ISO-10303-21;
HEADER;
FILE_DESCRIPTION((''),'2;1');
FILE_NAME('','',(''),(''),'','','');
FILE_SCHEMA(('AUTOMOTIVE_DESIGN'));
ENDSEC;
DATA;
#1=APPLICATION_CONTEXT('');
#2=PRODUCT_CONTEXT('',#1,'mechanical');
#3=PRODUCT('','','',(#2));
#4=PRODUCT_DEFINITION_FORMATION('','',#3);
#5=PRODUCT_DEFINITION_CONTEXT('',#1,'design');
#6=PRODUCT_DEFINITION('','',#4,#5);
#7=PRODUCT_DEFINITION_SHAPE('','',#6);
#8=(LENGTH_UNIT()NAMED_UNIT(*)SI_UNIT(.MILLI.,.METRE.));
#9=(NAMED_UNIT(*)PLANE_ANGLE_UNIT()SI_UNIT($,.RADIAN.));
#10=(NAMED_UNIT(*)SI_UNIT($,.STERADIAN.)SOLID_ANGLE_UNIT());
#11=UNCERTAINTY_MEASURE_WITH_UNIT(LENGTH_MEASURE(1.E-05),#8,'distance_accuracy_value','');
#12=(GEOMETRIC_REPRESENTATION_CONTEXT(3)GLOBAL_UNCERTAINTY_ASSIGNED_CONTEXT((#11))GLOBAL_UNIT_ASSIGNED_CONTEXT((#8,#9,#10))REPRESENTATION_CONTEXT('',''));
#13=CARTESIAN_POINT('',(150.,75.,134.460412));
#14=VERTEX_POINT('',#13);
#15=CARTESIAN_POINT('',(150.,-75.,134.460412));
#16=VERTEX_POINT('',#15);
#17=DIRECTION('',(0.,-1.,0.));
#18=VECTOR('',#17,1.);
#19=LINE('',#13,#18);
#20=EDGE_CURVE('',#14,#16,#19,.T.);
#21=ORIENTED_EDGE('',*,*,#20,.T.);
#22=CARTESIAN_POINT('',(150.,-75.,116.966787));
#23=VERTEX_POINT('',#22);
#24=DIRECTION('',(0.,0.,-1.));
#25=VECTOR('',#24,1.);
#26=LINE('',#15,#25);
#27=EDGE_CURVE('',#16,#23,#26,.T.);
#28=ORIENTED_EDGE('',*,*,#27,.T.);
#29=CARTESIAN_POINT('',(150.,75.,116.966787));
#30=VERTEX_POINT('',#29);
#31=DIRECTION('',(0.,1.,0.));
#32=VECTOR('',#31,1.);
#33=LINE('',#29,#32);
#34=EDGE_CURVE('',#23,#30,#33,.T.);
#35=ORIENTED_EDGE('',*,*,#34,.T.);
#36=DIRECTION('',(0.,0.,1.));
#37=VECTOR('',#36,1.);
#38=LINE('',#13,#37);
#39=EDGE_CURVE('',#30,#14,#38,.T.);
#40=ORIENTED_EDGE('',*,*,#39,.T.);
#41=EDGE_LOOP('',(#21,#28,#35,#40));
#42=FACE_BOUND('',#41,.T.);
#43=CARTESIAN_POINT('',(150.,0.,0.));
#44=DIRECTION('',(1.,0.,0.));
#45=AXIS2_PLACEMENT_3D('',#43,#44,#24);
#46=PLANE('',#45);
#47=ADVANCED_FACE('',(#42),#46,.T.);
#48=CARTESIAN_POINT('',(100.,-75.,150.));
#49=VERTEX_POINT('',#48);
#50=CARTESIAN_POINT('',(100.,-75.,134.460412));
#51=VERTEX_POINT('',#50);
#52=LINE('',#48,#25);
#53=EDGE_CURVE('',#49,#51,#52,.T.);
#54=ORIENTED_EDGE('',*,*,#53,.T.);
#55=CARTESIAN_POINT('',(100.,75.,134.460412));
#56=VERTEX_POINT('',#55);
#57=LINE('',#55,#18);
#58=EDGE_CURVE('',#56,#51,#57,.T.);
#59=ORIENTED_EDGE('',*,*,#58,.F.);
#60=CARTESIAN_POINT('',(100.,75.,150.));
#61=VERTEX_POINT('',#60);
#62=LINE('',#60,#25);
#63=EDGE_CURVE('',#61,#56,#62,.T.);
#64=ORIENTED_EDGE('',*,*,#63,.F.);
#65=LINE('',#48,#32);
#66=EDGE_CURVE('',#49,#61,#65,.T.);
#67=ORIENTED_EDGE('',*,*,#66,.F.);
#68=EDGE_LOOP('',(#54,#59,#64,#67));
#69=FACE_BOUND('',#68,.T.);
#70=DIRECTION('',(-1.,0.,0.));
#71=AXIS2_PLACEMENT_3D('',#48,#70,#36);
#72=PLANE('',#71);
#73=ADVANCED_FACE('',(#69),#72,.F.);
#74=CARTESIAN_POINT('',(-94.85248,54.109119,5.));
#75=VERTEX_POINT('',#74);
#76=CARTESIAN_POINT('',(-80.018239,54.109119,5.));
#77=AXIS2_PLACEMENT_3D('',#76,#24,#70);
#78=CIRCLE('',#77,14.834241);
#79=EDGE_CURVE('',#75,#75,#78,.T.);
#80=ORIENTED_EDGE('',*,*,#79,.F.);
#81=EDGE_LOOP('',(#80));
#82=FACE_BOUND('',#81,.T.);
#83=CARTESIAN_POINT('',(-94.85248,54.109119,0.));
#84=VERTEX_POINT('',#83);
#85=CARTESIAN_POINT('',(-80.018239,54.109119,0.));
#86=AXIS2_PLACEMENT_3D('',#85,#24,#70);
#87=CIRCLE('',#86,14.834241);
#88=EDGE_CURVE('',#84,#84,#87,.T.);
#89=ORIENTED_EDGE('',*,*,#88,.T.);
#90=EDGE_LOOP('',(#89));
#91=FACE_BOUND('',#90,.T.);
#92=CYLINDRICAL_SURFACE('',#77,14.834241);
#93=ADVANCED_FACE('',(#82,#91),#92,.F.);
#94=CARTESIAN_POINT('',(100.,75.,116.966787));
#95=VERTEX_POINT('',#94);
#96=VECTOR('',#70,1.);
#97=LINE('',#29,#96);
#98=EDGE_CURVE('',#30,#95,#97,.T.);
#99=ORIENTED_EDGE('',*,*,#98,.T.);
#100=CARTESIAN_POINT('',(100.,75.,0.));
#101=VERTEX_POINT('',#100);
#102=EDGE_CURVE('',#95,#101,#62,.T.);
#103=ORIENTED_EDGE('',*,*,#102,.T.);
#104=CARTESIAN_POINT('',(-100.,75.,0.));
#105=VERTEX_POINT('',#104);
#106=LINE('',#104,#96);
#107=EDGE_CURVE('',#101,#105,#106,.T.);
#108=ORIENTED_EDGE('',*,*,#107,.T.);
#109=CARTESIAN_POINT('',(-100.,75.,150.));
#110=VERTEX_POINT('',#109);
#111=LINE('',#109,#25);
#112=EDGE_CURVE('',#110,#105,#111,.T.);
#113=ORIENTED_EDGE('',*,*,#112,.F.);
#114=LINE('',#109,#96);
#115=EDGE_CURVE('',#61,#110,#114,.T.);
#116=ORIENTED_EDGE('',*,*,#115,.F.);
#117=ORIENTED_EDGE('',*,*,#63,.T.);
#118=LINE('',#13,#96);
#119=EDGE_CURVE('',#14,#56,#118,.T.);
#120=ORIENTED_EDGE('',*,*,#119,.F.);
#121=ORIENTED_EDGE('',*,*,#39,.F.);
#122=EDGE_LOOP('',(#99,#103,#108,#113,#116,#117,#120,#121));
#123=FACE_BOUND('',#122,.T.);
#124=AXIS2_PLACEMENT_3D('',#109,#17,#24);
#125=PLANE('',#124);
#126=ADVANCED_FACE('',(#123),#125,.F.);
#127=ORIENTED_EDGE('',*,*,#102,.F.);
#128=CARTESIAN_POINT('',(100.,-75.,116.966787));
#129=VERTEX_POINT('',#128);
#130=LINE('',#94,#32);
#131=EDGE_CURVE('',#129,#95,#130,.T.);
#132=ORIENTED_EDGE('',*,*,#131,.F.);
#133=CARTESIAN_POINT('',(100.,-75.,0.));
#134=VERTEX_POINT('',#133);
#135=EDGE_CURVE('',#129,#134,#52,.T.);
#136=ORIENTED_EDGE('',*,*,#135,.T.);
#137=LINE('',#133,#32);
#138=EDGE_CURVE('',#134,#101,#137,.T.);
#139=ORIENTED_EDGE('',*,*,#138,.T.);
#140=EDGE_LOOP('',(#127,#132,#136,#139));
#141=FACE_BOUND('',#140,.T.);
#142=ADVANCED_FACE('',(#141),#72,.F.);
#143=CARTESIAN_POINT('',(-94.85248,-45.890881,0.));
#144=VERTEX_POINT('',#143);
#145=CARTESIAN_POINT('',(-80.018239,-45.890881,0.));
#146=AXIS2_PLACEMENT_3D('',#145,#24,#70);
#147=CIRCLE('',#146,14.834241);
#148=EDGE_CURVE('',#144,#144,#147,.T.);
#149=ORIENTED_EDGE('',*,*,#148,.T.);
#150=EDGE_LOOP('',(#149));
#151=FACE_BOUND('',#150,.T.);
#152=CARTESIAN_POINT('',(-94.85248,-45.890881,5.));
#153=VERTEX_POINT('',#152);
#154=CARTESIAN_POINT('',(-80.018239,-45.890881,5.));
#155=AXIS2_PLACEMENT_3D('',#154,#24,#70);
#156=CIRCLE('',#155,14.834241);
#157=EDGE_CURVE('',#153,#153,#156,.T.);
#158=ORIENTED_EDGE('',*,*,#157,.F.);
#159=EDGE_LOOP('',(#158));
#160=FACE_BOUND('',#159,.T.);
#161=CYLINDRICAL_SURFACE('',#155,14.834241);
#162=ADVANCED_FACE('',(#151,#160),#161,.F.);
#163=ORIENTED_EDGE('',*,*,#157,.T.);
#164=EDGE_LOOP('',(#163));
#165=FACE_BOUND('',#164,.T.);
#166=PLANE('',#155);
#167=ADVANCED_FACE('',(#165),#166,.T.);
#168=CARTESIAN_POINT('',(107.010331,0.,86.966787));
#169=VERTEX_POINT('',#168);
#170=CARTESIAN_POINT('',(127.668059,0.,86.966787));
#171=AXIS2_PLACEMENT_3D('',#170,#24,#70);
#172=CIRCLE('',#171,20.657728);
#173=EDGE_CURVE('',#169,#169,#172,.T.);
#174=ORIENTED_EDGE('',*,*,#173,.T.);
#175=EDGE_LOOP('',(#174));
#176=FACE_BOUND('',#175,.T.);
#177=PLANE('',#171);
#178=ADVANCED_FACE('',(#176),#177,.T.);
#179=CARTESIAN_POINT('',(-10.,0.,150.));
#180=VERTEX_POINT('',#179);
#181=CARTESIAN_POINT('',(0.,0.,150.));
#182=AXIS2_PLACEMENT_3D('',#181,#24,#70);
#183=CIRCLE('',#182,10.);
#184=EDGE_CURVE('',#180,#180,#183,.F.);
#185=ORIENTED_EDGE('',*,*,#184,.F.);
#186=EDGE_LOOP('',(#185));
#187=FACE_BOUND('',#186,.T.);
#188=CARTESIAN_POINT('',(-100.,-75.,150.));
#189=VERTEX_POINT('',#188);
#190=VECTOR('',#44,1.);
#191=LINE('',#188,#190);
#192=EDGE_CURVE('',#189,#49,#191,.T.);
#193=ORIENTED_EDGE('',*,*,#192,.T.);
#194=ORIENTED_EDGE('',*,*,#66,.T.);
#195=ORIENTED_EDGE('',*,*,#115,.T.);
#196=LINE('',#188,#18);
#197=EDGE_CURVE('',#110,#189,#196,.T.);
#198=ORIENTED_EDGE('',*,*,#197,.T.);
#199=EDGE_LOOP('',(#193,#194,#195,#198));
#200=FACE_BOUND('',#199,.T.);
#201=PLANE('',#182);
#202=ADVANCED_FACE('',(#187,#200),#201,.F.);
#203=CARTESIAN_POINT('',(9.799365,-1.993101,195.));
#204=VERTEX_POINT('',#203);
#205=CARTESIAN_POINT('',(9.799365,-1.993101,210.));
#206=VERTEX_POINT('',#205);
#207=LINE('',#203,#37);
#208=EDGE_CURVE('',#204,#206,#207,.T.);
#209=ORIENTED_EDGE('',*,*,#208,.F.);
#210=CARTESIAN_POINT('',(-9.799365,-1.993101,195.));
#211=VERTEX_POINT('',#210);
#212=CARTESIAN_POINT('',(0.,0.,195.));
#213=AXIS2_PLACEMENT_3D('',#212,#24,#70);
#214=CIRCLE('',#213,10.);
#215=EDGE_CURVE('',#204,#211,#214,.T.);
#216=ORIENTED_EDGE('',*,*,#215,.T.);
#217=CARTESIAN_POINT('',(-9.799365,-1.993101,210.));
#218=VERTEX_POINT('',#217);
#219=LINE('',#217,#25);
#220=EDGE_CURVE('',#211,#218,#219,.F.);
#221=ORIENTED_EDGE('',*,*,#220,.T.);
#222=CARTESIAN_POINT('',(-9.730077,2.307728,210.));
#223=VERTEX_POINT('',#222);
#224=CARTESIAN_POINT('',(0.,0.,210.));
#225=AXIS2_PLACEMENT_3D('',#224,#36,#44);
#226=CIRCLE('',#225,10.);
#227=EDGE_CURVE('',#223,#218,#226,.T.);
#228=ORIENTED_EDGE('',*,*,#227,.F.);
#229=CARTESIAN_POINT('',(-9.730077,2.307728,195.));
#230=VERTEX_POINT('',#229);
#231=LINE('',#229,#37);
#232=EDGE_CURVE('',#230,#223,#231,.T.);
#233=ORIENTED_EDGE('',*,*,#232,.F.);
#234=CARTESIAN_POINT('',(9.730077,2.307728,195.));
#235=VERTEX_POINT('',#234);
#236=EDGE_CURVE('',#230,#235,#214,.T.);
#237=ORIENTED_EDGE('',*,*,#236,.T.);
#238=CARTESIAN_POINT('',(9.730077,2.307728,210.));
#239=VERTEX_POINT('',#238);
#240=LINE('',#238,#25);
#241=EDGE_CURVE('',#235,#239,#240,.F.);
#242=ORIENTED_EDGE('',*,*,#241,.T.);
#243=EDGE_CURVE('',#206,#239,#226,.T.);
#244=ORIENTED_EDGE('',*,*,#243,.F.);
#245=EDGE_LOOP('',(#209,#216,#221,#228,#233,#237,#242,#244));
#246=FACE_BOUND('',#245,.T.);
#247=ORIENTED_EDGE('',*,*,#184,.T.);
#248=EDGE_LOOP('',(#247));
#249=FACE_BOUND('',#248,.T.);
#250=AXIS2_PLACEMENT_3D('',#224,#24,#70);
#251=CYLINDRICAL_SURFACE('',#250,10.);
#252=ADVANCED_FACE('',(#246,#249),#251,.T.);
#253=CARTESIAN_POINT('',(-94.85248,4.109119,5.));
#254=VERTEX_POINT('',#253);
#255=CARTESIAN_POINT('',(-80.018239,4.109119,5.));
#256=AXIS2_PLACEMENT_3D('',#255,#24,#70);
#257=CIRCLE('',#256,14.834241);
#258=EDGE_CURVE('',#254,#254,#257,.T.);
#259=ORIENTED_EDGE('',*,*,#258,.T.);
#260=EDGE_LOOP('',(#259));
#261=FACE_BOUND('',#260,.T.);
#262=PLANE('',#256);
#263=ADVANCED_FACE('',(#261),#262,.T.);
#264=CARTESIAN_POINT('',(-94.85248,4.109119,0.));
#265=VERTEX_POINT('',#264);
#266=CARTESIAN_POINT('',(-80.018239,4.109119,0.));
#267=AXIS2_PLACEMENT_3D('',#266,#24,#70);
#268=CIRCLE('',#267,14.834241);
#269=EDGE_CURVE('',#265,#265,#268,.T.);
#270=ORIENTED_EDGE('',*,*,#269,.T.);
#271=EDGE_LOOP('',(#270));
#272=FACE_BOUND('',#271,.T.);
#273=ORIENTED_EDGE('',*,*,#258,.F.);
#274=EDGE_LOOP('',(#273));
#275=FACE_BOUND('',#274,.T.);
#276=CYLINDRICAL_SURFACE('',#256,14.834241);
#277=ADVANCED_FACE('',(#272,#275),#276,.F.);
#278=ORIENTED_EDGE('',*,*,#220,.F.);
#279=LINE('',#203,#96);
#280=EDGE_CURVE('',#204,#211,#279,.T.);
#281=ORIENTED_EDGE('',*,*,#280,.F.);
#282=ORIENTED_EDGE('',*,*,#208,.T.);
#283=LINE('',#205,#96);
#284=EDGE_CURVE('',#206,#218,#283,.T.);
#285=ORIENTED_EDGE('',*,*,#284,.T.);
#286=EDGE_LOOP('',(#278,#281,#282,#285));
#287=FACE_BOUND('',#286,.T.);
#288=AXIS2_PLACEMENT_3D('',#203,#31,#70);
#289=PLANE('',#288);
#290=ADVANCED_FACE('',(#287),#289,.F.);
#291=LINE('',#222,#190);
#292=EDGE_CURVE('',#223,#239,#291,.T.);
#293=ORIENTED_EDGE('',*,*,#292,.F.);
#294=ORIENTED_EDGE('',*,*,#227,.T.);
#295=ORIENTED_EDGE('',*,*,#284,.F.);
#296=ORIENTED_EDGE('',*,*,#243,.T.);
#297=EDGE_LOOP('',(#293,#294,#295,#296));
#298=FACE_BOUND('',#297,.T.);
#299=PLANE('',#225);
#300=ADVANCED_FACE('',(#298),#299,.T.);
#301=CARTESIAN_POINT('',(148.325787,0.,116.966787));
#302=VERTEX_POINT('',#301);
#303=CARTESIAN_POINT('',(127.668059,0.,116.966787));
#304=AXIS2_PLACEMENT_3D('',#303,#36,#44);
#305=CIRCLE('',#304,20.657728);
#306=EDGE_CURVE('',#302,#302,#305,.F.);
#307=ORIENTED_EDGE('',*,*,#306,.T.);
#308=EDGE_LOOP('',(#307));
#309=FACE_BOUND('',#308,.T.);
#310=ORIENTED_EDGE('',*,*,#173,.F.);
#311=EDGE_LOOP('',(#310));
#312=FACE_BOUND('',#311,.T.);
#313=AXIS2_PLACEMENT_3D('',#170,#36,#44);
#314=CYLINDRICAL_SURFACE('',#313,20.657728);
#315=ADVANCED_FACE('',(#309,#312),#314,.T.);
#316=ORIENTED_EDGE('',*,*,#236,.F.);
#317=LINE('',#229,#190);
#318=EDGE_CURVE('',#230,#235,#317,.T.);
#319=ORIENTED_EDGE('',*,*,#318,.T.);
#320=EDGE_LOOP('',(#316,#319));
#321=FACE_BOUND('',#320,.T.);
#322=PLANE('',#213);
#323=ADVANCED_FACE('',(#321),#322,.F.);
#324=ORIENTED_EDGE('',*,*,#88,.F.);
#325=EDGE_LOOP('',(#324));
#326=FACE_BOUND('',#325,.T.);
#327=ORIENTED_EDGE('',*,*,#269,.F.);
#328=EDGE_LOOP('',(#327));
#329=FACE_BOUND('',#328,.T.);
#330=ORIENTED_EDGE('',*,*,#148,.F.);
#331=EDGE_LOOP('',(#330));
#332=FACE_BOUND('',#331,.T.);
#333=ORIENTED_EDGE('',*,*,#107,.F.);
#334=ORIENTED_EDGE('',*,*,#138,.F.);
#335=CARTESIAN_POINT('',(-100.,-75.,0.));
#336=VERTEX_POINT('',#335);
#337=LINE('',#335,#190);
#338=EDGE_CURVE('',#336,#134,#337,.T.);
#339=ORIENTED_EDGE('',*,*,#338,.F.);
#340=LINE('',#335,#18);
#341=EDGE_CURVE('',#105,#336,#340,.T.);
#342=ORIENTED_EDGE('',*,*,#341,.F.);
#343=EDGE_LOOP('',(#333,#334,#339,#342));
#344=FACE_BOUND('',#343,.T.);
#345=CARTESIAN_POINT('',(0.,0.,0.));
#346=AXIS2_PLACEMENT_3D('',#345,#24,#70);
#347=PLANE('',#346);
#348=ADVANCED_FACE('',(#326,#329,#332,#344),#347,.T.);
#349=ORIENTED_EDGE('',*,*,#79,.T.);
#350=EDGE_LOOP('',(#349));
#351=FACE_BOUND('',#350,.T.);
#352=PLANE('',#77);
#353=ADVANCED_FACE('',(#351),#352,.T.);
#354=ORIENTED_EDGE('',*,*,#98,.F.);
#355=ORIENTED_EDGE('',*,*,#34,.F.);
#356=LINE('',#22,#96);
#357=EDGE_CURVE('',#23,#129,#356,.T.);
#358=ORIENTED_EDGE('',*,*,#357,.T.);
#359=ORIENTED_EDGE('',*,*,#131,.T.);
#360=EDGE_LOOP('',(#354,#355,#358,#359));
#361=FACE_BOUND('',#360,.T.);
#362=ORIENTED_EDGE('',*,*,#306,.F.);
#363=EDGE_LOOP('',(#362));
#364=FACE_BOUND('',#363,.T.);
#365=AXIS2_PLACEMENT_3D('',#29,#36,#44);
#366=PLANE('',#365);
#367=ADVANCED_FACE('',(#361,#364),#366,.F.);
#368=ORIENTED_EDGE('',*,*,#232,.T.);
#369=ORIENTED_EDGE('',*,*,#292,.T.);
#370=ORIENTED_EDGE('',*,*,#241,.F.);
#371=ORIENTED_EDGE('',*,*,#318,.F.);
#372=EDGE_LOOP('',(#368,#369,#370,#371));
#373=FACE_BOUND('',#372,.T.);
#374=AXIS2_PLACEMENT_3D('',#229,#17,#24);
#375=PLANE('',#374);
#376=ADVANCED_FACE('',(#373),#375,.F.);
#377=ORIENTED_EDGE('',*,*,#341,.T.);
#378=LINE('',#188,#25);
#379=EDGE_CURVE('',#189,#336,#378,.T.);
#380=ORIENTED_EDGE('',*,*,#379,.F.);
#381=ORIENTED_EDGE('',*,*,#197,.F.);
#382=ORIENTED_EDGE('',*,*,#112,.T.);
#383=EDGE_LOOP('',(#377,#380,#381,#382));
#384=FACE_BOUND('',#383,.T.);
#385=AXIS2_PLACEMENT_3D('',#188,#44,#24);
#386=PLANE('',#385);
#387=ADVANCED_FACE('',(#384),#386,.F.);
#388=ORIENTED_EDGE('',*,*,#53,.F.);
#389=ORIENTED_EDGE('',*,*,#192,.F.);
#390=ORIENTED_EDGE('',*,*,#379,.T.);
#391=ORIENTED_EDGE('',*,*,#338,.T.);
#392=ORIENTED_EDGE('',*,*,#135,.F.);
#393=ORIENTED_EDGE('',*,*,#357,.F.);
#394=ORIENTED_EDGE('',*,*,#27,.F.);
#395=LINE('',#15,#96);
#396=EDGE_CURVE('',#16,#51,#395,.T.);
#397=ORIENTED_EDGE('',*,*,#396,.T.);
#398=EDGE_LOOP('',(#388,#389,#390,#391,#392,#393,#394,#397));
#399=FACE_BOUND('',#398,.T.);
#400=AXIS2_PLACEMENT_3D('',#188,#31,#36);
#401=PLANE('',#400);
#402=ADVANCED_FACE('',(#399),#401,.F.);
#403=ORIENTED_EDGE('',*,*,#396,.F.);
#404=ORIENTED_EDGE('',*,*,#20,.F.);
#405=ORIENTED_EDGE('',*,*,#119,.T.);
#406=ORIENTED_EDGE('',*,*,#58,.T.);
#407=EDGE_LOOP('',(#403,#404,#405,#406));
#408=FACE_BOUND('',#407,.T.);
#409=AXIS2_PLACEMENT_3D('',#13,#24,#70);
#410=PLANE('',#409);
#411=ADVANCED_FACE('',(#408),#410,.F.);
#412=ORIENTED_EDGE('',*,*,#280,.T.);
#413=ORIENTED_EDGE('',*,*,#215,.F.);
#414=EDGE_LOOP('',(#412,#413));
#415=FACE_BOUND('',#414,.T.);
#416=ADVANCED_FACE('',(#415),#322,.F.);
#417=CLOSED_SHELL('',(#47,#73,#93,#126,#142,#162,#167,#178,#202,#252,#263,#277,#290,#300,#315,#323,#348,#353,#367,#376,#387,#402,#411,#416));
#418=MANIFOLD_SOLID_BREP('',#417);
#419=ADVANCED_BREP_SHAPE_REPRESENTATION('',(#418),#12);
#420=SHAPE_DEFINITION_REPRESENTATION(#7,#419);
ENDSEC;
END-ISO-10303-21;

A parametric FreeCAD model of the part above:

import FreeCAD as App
import Part
import Sketcher
from FreeCAD import Vector
Q = App.Units.Quantity


def add_polygon(sketch, points):
    """Adds a closed chain of lines whose ends are joined by coincident constraints."""
    first, n = sketch.GeometryCount, len(points)
    for a, b in zip(points, points[1:] + points[:1]):
        sketch.addGeometry(Part.LineSegment(App.Vector(*a, 0), App.Vector(*b, 0)), False)
    for i in range(n):
        sketch.addConstraint(Sketcher.Constraint("Coincident", first + i, 2, first + (i + 1) % n, 1))

doc = App.newDocument("Part")
body = doc.addObject("PartDesign::Body", "Body")

sketch1 = body.newObject("Sketcher::SketchObject", "Sketch")
sketch1.AttachmentSupport = (doc.getObject("XY_Plane"), [""])
sketch1.MapMode = "FlatFace"
add_polygon(sketch1, [(-100, 75), (-100, -75), (100, -75), (100, 75)])
sketch1.addConstraint([
    Sketcher.Constraint("Vertical", 0),
    Sketcher.Constraint("Horizontal", 1),
    Sketcher.Constraint("Vertical", 2),
    Sketcher.Constraint("Horizontal", 3),
    Sketcher.Constraint("Symmetric", 0, 2, 2, 2, -1, 1),
    Sketcher.Constraint("DistanceX", 1, 1, 1, 2, Q("200 mm")),
    Sketcher.Constraint("DistanceY", 0, 2, 0, 1, Q("150 mm")),
])
pad1 = body.newObject("PartDesign::Pad", "Pad")
pad1.Profile = sketch1
pad1.Length = 150

sketch2 = body.newObject("Sketcher::SketchObject", "Sketch001")
sketch2.AttachmentSupport = (doc.getObject("XY_Plane"), [""])
sketch2.MapMode = "FlatFace"
sketch2.addGeometry(Part.Circle(Vector(-80, 54, 0), Vector(0, 0, 1), 15), False)
sketch2.addConstraint([
    Sketcher.Constraint("Diameter", 0, Q("29.668483 mm")),
    Sketcher.Constraint("DistanceX", 0, 3, -1, 1, Q("80.018239 mm")),
    Sketcher.Constraint("DistanceY", -1, 1, 0, 3, Q("54.109119 mm")),
])
pocket1 = body.newObject("PartDesign::Pocket", "Pocket")
pocket1.Profile = sketch2
pocket1.Length = 5
pocket1.Reversed = True
doc.recompute()

linearpattern = body.newObject("PartDesign::LinearPattern", "LinearPattern")
linearpattern.Originals = [pocket1]
linearpattern.Direction = (doc.getObject("Y_Axis"), [""])
linearpattern.Mode = "offset"
linearpattern.Offset = 50
linearpattern.Occurrences = 3
linearpattern.Reversed = True
body.Tip = linearpattern

sketch3 = body.newObject("Sketcher::SketchObject", "Sketch002")
sketch3.AttachmentSupport = (doc.getObject("YZ_Plane"), [""])
sketch3.MapMode = "FlatFace"
sketch3.AttachmentOffset = App.Placement(Vector(0, 0, 100), App.Rotation())
add_polygon(sketch3, [(75, 134), (-75, 134), (-75, 117), (75, 117)])
sketch3.addConstraint([
    Sketcher.Constraint("Horizontal", 0),
    Sketcher.Constraint("Vertical", 1),
    Sketcher.Constraint("Horizontal", 2),
    Sketcher.Constraint("Vertical", 3),
    Sketcher.Constraint("DistanceX", 0, 2, 0, 1, Q("150 mm")),
    Sketcher.Constraint("DistanceX", 0, 2, -1, 1, Q("75 mm")),
    Sketcher.Constraint("DistanceY", 1, 2, 1, 1, Q("17.493625 mm")),
    Sketcher.Constraint("DistanceY", -1, 1, 0, 2, Q("134.460412 mm")),
])
pad2 = body.newObject("PartDesign::Pad", "Pad001")
pad2.Profile = sketch3
pad2.Length = 50

sketch4 = body.newObject("Sketcher::SketchObject", "Sketch003")
sketch4.AttachmentSupport = (doc.getObject("XY_Plane"), [""])
sketch4.MapMode = "FlatFace"
sketch4.AttachmentOffset = App.Placement(Vector(0, 0, 116.966787), App.Rotation())
sketch4.addGeometry(Part.Circle(Vector(128, 0, 0), Vector(0, 0, 1), 21), False)
sketch4.addConstraint([
    Sketcher.Constraint("PointOnObject", 0, 3, -1),
    Sketcher.Constraint("Diameter", 0, Q("41.315455 mm")),
    Sketcher.Constraint("DistanceX", -1, 1, 0, 3, Q("127.668059 mm")),
])
pad3 = body.newObject("PartDesign::Pad", "Pad002")
pad3.Profile = sketch4
pad3.Length = 30
pad3.Reversed = True

sketch5 = body.newObject("Sketcher::SketchObject", "Sketch004")
sketch5.AttachmentSupport = (doc.getObject("XY_Plane"), [""])
sketch5.MapMode = "FlatFace"
sketch5.AttachmentOffset = App.Placement(Vector(0, 0, 150), App.Rotation())
sketch5.addGeometry(Part.Circle(Vector(0, 0, 0), Vector(0, 0, 1), 10), False)
sketch5.addConstraint([
    Sketcher.Constraint("Coincident", 0, 3, -1, 1),
    Sketcher.Constraint("Diameter", 0, Q("20 mm")),
])
pad4 = body.newObject("PartDesign::Pad", "Pad003")
pad4.Profile = sketch5
pad4.Length = 60

sketch6 = body.newObject("Sketcher::SketchObject", "Sketch005")
sketch6.AttachmentSupport = (doc.getObject("XY_Plane"), [""])
sketch6.MapMode = "FlatFace"
sketch6.AttachmentOffset = App.Placement(Vector(0, 0, 210), App.Rotation())
add_polygon(sketch6, [(-10, 11), (-10, 2), (10, 2), (10, 11)])
add_polygon(sketch6, [(-12, -2), (-12, -10), (10, -10), (10, -2)])
sketch6.addConstraint([
    Sketcher.Constraint("Vertical", 0),
    Sketcher.Constraint("Horizontal", 1),
    Sketcher.Constraint("Vertical", 2),
    Sketcher.Constraint("Horizontal", 3),
    Sketcher.Constraint("Vertical", 4),
    Sketcher.Constraint("Horizontal", 5),
    Sketcher.Constraint("Vertical", 6),
    Sketcher.Constraint("Horizontal", 7),
    Sketcher.Constraint("DistanceY", 4, 2, -1, 1, Q("10 mm")),
    Sketcher.Constraint("DistanceY", 4, 2, 4, 1, Q("8.006899 mm")),
    Sketcher.Constraint("DistanceX", 1, 1, 1, 2, Q("19.927594 mm")),
    Sketcher.Constraint("DistanceX", 5, 1, 5, 2, Q("21.376213 mm")),
    Sketcher.Constraint("DistanceY", 0, 2, 0, 1, Q("8.419653 mm")),
    Sketcher.Constraint("DistanceY", -1, 1, 2, 2, Q("10.72738 mm")),
    Sketcher.Constraint("DistanceX", 4, 2, 0, 2, Q("1.846771 mm")),
    Sketcher.Constraint("DistanceX", 0, 2, -1, 1, Q("9.730077 mm")),
])
pocket2 = body.newObject("PartDesign::Pocket", "Pocket001")
pocket2.Profile = sketch6
pocket2.Length = 15

doc.recompute()
